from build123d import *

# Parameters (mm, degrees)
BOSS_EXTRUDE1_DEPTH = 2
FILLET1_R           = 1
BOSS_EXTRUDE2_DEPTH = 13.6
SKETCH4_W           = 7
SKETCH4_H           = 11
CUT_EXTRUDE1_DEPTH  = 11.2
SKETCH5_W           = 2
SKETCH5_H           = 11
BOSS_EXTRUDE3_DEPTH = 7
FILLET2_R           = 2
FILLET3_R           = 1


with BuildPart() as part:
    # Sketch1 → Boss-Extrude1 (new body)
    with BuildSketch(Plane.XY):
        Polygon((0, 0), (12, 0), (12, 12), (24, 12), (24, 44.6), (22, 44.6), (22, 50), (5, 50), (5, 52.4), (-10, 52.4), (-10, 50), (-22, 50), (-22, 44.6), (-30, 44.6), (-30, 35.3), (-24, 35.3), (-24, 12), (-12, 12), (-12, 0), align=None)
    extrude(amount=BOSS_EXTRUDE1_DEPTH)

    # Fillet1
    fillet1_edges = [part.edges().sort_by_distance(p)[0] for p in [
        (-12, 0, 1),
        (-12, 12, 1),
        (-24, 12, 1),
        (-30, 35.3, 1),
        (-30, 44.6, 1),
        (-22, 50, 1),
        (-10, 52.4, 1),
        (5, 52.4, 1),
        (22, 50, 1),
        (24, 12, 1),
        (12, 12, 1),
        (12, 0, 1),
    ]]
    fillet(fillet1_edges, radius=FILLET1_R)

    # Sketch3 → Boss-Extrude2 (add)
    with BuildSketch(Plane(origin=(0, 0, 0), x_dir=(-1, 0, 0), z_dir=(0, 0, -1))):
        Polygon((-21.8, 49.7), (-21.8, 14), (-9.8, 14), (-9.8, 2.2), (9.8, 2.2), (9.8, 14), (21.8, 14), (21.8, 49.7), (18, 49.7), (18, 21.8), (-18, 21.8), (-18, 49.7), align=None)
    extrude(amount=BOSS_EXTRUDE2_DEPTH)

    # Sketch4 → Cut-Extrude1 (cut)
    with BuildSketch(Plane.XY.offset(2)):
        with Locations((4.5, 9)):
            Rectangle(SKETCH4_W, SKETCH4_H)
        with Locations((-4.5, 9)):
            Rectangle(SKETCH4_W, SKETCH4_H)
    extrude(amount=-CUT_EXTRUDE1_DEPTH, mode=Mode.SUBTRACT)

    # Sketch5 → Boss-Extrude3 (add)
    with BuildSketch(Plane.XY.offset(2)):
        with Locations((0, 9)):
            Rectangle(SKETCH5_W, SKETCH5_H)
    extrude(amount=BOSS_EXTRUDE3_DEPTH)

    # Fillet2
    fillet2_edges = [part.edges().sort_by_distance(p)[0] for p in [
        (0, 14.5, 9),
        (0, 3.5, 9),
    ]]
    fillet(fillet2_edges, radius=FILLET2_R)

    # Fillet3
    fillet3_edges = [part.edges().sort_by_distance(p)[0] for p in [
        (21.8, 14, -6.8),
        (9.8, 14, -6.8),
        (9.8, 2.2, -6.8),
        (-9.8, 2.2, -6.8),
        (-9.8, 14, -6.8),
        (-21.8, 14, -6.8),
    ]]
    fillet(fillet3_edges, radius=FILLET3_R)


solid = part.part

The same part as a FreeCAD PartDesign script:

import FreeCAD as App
import Part
import Sketcher
from FreeCAD import Vector
Q = App.Units.Quantity


def edges_at(feature, points):
    """Names of the edges that pass closest to the given points."""
    edges = feature.Shape.Edges
    near = lambda p: min(range(len(edges)), key=lambda i: edges[i].distToShape(Part.Vertex(*p))[0])
    return sorted({f"Edge{near(p) + 1}" for p in points})

doc = App.newDocument("Part")
body = doc.addObject("PartDesign::Body", "Body")

sketch1 = body.newObject("Sketcher::SketchObject", "Sketch")
sketch1.AttachmentSupport = (doc.getObject("XY_Plane"), [""])
sketch1.MapMode = "FlatFace"
sketch1.addGeometry([
    Part.LineSegment(Vector(12, 0, 0), Vector(12, 12, 0)),
    Part.LineSegment(Vector(12, 12, 0), Vector(24, 12, 0)),
    Part.LineSegment(Vector(24, 12, 0), Vector(24, 44.6, 0)),
    Part.LineSegment(Vector(24, 44.6, 0), Vector(22, 44.6, 0)),
    Part.LineSegment(Vector(22, 44.6, 0), Vector(22, 50, 0)),
    Part.LineSegment(Vector(22, 50, 0), Vector(5, 50, 0)),
    Part.LineSegment(Vector(5, 50, 0), Vector(5, 52.4, 0)),
    Part.LineSegment(Vector(5, 52.4, 0), Vector(-10, 52.4, 0)),
    Part.LineSegment(Vector(-10, 52.4, 0), Vector(-10, 50, 0)),
    Part.LineSegment(Vector(-10, 50, 0), Vector(-22, 50, 0)),
    Part.LineSegment(Vector(-22, 50, 0), Vector(-22, 44.6, 0)),
    Part.LineSegment(Vector(-22, 44.6, 0), Vector(-30, 44.6, 0)),
    Part.LineSegment(Vector(-30, 44.6, 0), Vector(-30, 35.3, 0)),
    Part.LineSegment(Vector(-30, 35.3, 0), Vector(-24, 35.3, 0)),
    Part.LineSegment(Vector(-24, 35.3, 0), Vector(-24, 12, 0)),
    Part.LineSegment(Vector(-24, 12, 0), Vector(-12, 12, 0)),
    Part.LineSegment(Vector(-12, 12, 0), Vector(-12, 0, 0)),
    Part.LineSegment(Vector(-12, 0, 0), Vector(12, 0, 0)),
], False)
sketch1.addConstraint([
    Sketcher.Constraint("Coincident", 0, 2, 1, 1),
    Sketcher.Constraint("Coincident", 1, 2, 2, 1),
    Sketcher.Constraint("Coincident", 2, 2, 3, 1),
    Sketcher.Constraint("Coincident", 3, 2, 4, 1),
    Sketcher.Constraint("Coincident", 4, 2, 5, 1),
    Sketcher.Constraint("Coincident", 5, 2, 6, 1),
    Sketcher.Constraint("Coincident", 6, 2, 7, 1),
    Sketcher.Constraint("Coincident", 7, 2, 8, 1),
    Sketcher.Constraint("Coincident", 8, 2, 9, 1),
    Sketcher.Constraint("Coincident", 9, 2, 10, 1),
    Sketcher.Constraint("Coincident", 10, 2, 11, 1),
    Sketcher.Constraint("Coincident", 11, 2, 12, 1),
    Sketcher.Constraint("Coincident", 12, 2, 13, 1),
    Sketcher.Constraint("Coincident", 13, 2, 14, 1),
    Sketcher.Constraint("Coincident", 14, 2, 15, 1),
    Sketcher.Constraint("Coincident", 15, 2, 16, 1),
    Sketcher.Constraint("Coincident", 16, 2, 17, 1),
    Sketcher.Constraint("Coincident", 17, 2, 0, 1),
    Sketcher.Constraint("Vertical", 0),
    Sketcher.Constraint("Horizontal", 1),
    Sketcher.Constraint("Vertical", 2),
    Sketcher.Constraint("Horizontal", 3),
    Sketcher.Constraint("Vertical", 4),
    Sketcher.Constraint("Horizontal", 5),
    Sketcher.Constraint("Vertical", 6),
    Sketcher.Constraint("Horizontal", 7),
    Sketcher.Constraint("Vertical", 8),
    Sketcher.Constraint("Horizontal", 9),
    Sketcher.Constraint("Vertical", 10),
    Sketcher.Constraint("Horizontal", 11),
    Sketcher.Constraint("Vertical", 12),
    Sketcher.Constraint("Horizontal", 13),
    Sketcher.Constraint("Vertical", 14),
    Sketcher.Constraint("Horizontal", 15),
    Sketcher.Constraint("Vertical", 16),
    Sketcher.Constraint("Horizontal", 17),
    Sketcher.Constraint("Symmetric", 16, 2, 17, 2, -1, 1),
    Sketcher.Constraint("Symmetric", 4, 2, 9, 2, -2),
    Sketcher.Constraint("Symmetric", 1, 2, 14, 2, -2),
    Sketcher.Constraint("Horizontal", 3, 2, 10, 2),
    Sketcher.Constraint("Equal", 1, 9),
    Sketcher.Constraint("Equal", 15, 0),
    Sketcher.Constraint("DistanceX", 1, 1, 1, 2, Q("12 mm")),
    Sketcher.Constraint("DistanceX", 3, 2, 3, 1, Q("2 mm")),
    Sketcher.Constraint("DistanceX", 5, 2, 5, 1, Q("17 mm")),
    Sketcher.Constraint("DistanceX", 7, 2, 7, 1, Q("15 mm")),
    Sketcher.Constraint("DistanceX", 11, 2, 11, 1, Q("8 mm")),
    Sketcher.Constraint("DistanceY", 2, 1, 2, 2, Q("32.6 mm")),
    Sketcher.Constraint("DistanceY", 4, 1, 4, 2, Q("5.4 mm")),
    Sketcher.Constraint("DistanceY", 6, 1, 6, 2, Q("2.4 mm")),
    Sketcher.Constraint("DistanceY", 12, 2, 12, 1, Q("9.3 mm")),
])
pad1 = body.newObject("PartDesign::Pad", "Pad")
pad1.Profile = sketch1
pad1.Length = 2
doc.recompute()

fillet = body.newObject("PartDesign::Fillet", "Fillet")
fillet.Base = (pad1, edges_at(pad1, [
    (-12, 0, 1),
    (-12, 12, 1),
    (-24, 12, 1),
    (-30, 35.3, 1),
    (-30, 44.6, 1),
    (-22, 50, 1),
    (-10, 52.4, 1),
    (5, 52.4, 1),
    (22, 50, 1),
    (24, 12, 1),
    (12, 12, 1),
    (12, 0, 1),
]))
fillet.Radius = 1

sketch2 = body.newObject("Sketcher::SketchObject", "Sketch001")
sketch2.AttachmentSupport = (doc.getObject("XY_Plane"), [""])
sketch2.MapMode = "FlatFace"
sketch2.addGeometry([
    Part.LineSegment(Vector(21.8, 49.7, 0), Vector(21.8, 14, 0)),
    Part.LineSegment(Vector(21.8, 14, 0), Vector(9.8, 14, 0)),
    Part.LineSegment(Vector(9.8, 14, 0), Vector(9.8, 2.2, 0)),
    Part.LineSegment(Vector(9.8, 2.2, 0), Vector(-9.8, 2.2, 0)),
    Part.LineSegment(Vector(-9.8, 2.2, 0), Vector(-9.8, 14, 0)),
    Part.LineSegment(Vector(-9.8, 14, 0), Vector(-21.8, 14, 0)),
    Part.LineSegment(Vector(-21.8, 14, 0), Vector(-21.8, 49.7, 0)),
    Part.LineSegment(Vector(-21.8, 49.7, 0), Vector(-18, 49.7, 0)),
    Part.LineSegment(Vector(-18, 49.7, 0), Vector(-18, 21.8, 0)),
    Part.LineSegment(Vector(-18, 21.8, 0), Vector(18, 21.8, 0)),
    Part.LineSegment(Vector(18, 21.8, 0), Vector(18, 49.7, 0)),
    Part.LineSegment(Vector(18, 49.7, 0), Vector(21.8, 49.7, 0)),
], False)
sketch2.addConstraint([
    Sketcher.Constraint("Coincident", 0, 2, 1, 1),
    Sketcher.Constraint("Coincident", 1, 2, 2, 1),
    Sketcher.Constraint("Coincident", 2, 2, 3, 1),
    Sketcher.Constraint("Coincident", 3, 2, 4, 1),
    Sketcher.Constraint("Coincident", 4, 2, 5, 1),
    Sketcher.Constraint("Coincident", 5, 2, 6, 1),
    Sketcher.Constraint("Coincident", 6, 2, 7, 1),
    Sketcher.Constraint("Coincident", 7, 2, 8, 1),
    Sketcher.Constraint("Coincident", 8, 2, 9, 1),
    Sketcher.Constraint("Coincident", 9, 2, 10, 1),
    Sketcher.Constraint("Coincident", 10, 2, 11, 1),
    Sketcher.Constraint("Coincident", 11, 2, 0, 1),
    Sketcher.Constraint("Vertical", 0),
    Sketcher.Constraint("Horizontal", 1),
    Sketcher.Constraint("Vertical", 2),
    Sketcher.Constraint("Horizontal", 3),
    Sketcher.Constraint("Vertical", 4),
    Sketcher.Constraint("Horizontal", 5),
    Sketcher.Constraint("Vertical", 6),
    Sketcher.Constraint("Horizontal", 7),
    Sketcher.Constraint("Vertical", 8),
    Sketcher.Constraint("Horizontal", 9),
    Sketcher.Constraint("Vertical", 10),
    Sketcher.Constraint("Horizontal", 11),
    Sketcher.Constraint("Symmetric", 1, 2, 4, 2, -2),
    Sketcher.Constraint("Symmetric", 7, 2, 10, 2, -2),
    Sketcher.Constraint("Equal", 1, 5),
    Sketcher.Constraint("DistanceX", 1, 2, 1, 1, Q("12 mm")),
    Sketcher.Constraint("DistanceX", 9, 1, 9, 2, Q("36 mm")),
    Sketcher.Constraint("DistanceX", 3, 2, 3, 1, Q("19.6 mm")),
    Sketcher.Constraint("DistanceY", 0, 2, 0, 1, Q("35.7 mm")),
    Sketcher.Constraint("DistanceY", 2, 2, 2, 1, Q("11.8 mm")),
    Sketcher.Constraint("DistanceY", 8, 2, 8, 1, Q("27.9 mm")),
    Sketcher.Constraint("DistanceY", -1, 1, 0, 2, Q("14 mm")),
])
pad2 = body.newObject("PartDesign::Pad", "Pad001")
pad2.Profile = sketch2
pad2.Length = 13.6
pad2.Reversed = True

sketch3 = body.newObject("Sketcher::SketchObject", "Sketch002")
sketch3.AttachmentSupport = (doc.getObject("XY_Plane"), [""])
sketch3.MapMode = "FlatFace"
sketch3.AttachmentOffset = App.Placement(Vector(0, 0, 2), App.Rotation())
sketch3.addGeometry([
    Part.LineSegment(Vector(1, 14, 0), Vector(1, 4, 0)),
    Part.LineSegment(Vector(1, 4, 0), Vector(8, 4, 0)),
    Part.LineSegment(Vector(8, 4, 0), Vector(8, 14, 0)),
    Part.LineSegment(Vector(8, 14, 0), Vector(1, 14, 0)),
    Part.LineSegment(Vector(-8, 14, 0), Vector(-8, 4, 0)),
    Part.LineSegment(Vector(-8, 4, 0), Vector(-1, 4, 0)),
    Part.LineSegment(Vector(-1, 4, 0), Vector(-1, 14, 0)),
    Part.LineSegment(Vector(-1, 14, 0), Vector(-8, 14, 0)),
], False)
sketch3.addConstraint([
    Sketcher.Constraint("Coincident", 0, 2, 1, 1),
    Sketcher.Constraint("Coincident", 1, 2, 2, 1),
    Sketcher.Constraint("Coincident", 2, 2, 3, 1),
    Sketcher.Constraint("Coincident", 3, 2, 0, 1),
    Sketcher.Constraint("Coincident", 4, 2, 5, 1),
    Sketcher.Constraint("Coincident", 5, 2, 6, 1),
    Sketcher.Constraint("Coincident", 6, 2, 7, 1),
    Sketcher.Constraint("Coincident", 7, 2, 4, 1),
    Sketcher.Constraint("Vertical", 0),
    Sketcher.Constraint("Horizontal", 1),
    Sketcher.Constraint("Vertical", 2),
    Sketcher.Constraint("Horizontal", 3),
    Sketcher.Constraint("Vertical", 4),
    Sketcher.Constraint("Horizontal", 5),
    Sketcher.Constraint("Vertical", 6),
    Sketcher.Constraint("Horizontal", 7),
    Sketcher.Constraint("Symmetric", 1, 2, 4, 2, -2),
    Sketcher.Constraint("Symmetric", 3, 2, 6, 2, -2),
    Sketcher.Constraint("DistanceX", 1, 1, 1, 2, Q("7 mm")),
    Sketcher.Constraint("DistanceY", 0, 2, 0, 1, Q("11 mm")),
    Sketcher.Constraint("DistanceX", -1, 1, 0, 2, Q("1 mm")),
    Sketcher.Constraint("DistanceY", -1, 1, 0, 2, Q("3.5 mm")),
])
pocket1 = body.newObject("PartDesign::Pocket", "Pocket")
pocket1.Profile = sketch3
pocket1.Length = 11.2

sketch4 = body.newObject("Sketcher::SketchObject", "Sketch003")
sketch4.AttachmentSupport = (doc.getObject("XY_Plane"), [""])
sketch4.MapMode = "FlatFace"
sketch4.AttachmentOffset = App.Placement(Vector(0, 0, 2), App.Rotation())
sketch4.addGeometry([
    Part.LineSegment(Vector(-1, 14.5, 0), Vector(-1, 3.5, 0)),
    Part.LineSegment(Vector(-1, 3.5, 0), Vector(1, 3.5, 0)),
    Part.LineSegment(Vector(1, 3.5, 0), Vector(1, 14.5, 0)),
    Part.LineSegment(Vector(1, 14.5, 0), Vector(-1, 14.5, 0)),
], False)
sketch4.addConstraint([
    Sketcher.Constraint("Coincident", 0, 2, 1, 1),
    Sketcher.Constraint("Coincident", 1, 2, 2, 1),
    Sketcher.Constraint("Coincident", 2, 2, 3, 1),
    Sketcher.Constraint("Coincident", 3, 2, 0, 1),
    Sketcher.Constraint("Vertical", 0),
    Sketcher.Constraint("Horizontal", 1),
    Sketcher.Constraint("Vertical", 2),
    Sketcher.Constraint("Horizontal", 3),
    Sketcher.Constraint("DistanceX", 1, 1, 1, 2, Q("2 mm")),
    Sketcher.Constraint("DistanceY", 0, 2, 0, 1, Q("11 mm")),
    Sketcher.Constraint("DistanceX", 0, 2, -1, 1, Q("1 mm")),
    Sketcher.Constraint("DistanceY", -1, 1, 0, 2, Q("3.5 mm")),
])
pad3 = body.newObject("PartDesign::Pad", "Pad002")
pad3.Profile = sketch4
pad3.Length = 7
doc.recompute()

fillet2 = body.newObject("PartDesign::Fillet", "Fillet001")
fillet2.Base = (pad3, edges_at(pad3, [(0, 14.5, 9), (0, 3.5, 9)]))
fillet2.Radius = 2
doc.recompute()

fillet3 = body.newObject("PartDesign::Fillet", "Fillet002")
fillet3.Base = (fillet2, edges_at(fillet2, [
    (21.8, 14, -6.8),
    (9.8, 14, -6.8),
    (9.8, 2.2, -6.8),
    (-9.8, 2.2, -6.8),
    (-9.8, 14, -6.8),
    (-21.8, 14, -6.8),
]))
fillet3.Radius = 1

doc.recompute()
